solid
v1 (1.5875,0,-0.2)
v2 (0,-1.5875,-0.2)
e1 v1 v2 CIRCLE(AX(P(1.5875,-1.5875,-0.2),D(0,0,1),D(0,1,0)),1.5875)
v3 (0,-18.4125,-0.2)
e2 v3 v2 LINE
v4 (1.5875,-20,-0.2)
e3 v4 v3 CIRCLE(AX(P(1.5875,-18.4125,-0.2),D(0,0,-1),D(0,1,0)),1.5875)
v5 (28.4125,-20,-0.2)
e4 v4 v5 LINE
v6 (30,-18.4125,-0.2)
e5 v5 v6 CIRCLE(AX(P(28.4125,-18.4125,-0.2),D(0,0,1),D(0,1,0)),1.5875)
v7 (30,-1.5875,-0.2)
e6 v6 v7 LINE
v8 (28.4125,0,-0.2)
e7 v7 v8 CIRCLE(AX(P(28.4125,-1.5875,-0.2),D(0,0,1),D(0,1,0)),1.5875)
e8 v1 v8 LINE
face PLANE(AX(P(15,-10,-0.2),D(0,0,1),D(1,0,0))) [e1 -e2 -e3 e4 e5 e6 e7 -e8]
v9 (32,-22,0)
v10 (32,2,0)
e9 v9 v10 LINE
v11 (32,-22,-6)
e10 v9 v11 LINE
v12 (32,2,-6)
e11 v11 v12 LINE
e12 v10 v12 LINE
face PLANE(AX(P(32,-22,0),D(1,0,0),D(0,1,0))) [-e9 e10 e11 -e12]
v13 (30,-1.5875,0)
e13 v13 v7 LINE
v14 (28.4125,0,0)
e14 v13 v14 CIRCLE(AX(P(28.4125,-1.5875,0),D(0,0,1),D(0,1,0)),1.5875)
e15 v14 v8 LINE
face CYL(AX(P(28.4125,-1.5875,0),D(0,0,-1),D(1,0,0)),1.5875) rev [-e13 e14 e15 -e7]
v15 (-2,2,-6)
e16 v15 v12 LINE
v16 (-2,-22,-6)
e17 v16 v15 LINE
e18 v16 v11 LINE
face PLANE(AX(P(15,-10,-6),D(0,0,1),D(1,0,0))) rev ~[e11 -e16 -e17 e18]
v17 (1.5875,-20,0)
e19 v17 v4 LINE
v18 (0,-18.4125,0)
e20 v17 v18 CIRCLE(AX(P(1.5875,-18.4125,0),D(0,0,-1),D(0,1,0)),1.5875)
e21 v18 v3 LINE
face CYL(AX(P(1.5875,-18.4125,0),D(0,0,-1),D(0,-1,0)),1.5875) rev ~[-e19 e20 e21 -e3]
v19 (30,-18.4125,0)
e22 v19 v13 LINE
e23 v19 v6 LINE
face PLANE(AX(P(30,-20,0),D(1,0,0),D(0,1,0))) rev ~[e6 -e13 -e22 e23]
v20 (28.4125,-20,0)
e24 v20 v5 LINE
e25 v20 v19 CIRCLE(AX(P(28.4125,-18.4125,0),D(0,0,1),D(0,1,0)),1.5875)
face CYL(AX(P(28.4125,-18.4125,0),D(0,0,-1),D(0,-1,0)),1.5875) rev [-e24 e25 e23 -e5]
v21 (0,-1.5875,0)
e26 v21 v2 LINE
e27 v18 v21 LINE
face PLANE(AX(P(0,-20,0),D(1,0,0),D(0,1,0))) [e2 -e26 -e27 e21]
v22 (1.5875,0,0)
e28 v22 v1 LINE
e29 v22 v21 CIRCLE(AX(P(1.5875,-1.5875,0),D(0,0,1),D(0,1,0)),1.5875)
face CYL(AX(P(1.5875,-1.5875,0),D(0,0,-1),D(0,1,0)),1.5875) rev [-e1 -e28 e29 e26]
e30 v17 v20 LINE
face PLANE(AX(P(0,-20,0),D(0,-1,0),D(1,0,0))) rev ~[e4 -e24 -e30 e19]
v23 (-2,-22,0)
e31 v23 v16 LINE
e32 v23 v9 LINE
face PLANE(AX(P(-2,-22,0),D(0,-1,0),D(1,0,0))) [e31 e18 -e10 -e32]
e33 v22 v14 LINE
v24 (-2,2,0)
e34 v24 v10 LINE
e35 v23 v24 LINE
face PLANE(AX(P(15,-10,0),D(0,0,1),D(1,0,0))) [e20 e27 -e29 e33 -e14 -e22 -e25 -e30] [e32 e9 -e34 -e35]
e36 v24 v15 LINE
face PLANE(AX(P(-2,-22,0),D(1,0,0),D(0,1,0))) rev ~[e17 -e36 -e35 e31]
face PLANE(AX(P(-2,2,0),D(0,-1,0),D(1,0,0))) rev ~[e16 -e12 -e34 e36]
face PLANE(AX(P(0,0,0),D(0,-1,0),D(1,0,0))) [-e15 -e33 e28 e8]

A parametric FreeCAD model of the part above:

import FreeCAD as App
import Part
import Sketcher
Q = App.Units.Quantity


def edges_at(feature, points):
    """Names of the edges that pass closest to the given points."""
    edges = feature.Shape.Edges
    near = lambda p: min(range(len(edges)), key=lambda i: edges[i].distToShape(Part.Vertex(*p))[0])
    return sorted({f"Edge{near(p) + 1}" for p in points})

doc = App.newDocument("Part")
body = doc.addObject("PartDesign::Body", "Body")

# Sketch on XY plane
sketch1 = doc.addObject("Sketcher::SketchObject", "Sketch")
body.addObject(sketch1)
sketch1.AttachmentSupport = (doc.XY_Plane, [""])
sketch1.MapMode = "FlatFace"
sketch1.addGeometry([
    Part.LineSegment(App.Vector(-2, 2, 0), App.Vector(-2, -22, 0)),
    Part.LineSegment(App.Vector(-2, -22, 0), App.Vector(32, -22, 0)),
    Part.LineSegment(App.Vector(32, -22, 0), App.Vector(32, 2, 0)),
    Part.LineSegment(App.Vector(32, 2, 0), App.Vector(-2, 2, 0)),
], False)
sketch1.addConstraint([
    Sketcher.Constraint("Coincident", 0, 2, 1, 1),
    Sketcher.Constraint("Coincident", 1, 2, 2, 1),
    Sketcher.Constraint("Coincident", 2, 2, 3, 1),
    Sketcher.Constraint("Coincident", 3, 2, 0, 1),
    Sketcher.Constraint("Vertical", 0),
    Sketcher.Constraint("Horizontal", 1),
    Sketcher.Constraint("Vertical", 2),
    Sketcher.Constraint("Horizontal", 3),
    Sketcher.Constraint("DistanceX", 1, 1, 1, 2, Q("34 mm")),
    Sketcher.Constraint("DistanceY", 0, 2, 0, 1, Q("24 mm")),
    Sketcher.Constraint("DistanceX", 0, 2, -1, 1, Q("2 mm")),
    Sketcher.Constraint("DistanceY", 0, 2, -1, 1, Q("22 mm")),
])
pad1 = doc.addObject("PartDesign::Pad", "Pad")
body.addObject(pad1)
pad1.Profile = sketch1
pad1.Length = 6
pad1.Reversed = True

# Sketch on XY plane
sketch2 = doc.addObject("Sketcher::SketchObject", "Sketch001")
body.addObject(sketch2)
sketch2.AttachmentSupport = (doc.XY_Plane, [""])
sketch2.MapMode = "FlatFace"
sketch2.addGeometry([
    Part.LineSegment(App.Vector(0, 0, 0), App.Vector(0, -20, 0)),
    Part.LineSegment(App.Vector(0, -20, 0), App.Vector(30, -20, 0)),
    Part.LineSegment(App.Vector(30, -20, 0), App.Vector(30, 0, 0)),
    Part.LineSegment(App.Vector(30, 0, 0), App.Vector(0, 0, 0)),
], False)
sketch2.addConstraint([
    Sketcher.Constraint("Coincident", 0, 2, 1, 1),
    Sketcher.Constraint("Coincident", 1, 2, 2, 1),
    Sketcher.Constraint("Coincident", 2, 2, 3, 1),
    Sketcher.Constraint("Coincident", 3, 2, 0, 1),
    Sketcher.Constraint("Vertical", 0),
    Sketcher.Constraint("Horizontal", 1),
    Sketcher.Constraint("Vertical", 2),
    Sketcher.Constraint("Horizontal", 3),
    Sketcher.Constraint("Coincident", 3, 2, -1, 1),
    Sketcher.Constraint("DistanceX", 1, 1, 1, 2, Q("30 mm")),
    Sketcher.Constraint("DistanceY", 0, 2, 0, 1, Q("20 mm")),
])
pocket1 = doc.addObject("PartDesign::Pocket", "Pocket")
body.addObject(pocket1)
pocket1.Profile = sketch2
pocket1.Length = 0.2
doc.recompute()

fillet = doc.addObject("PartDesign::Fillet", "Fillet")
body.addObject(fillet)
fillet.Base = (pocket1, edges_at(pocket1, [
    (0, 0, -0.1),
    (30, 0, -0.1),
    (30, -20, -0.1),
    (0, -20, -0.1),
]))
fillet.Radius = 1.5875

doc.recompute()
